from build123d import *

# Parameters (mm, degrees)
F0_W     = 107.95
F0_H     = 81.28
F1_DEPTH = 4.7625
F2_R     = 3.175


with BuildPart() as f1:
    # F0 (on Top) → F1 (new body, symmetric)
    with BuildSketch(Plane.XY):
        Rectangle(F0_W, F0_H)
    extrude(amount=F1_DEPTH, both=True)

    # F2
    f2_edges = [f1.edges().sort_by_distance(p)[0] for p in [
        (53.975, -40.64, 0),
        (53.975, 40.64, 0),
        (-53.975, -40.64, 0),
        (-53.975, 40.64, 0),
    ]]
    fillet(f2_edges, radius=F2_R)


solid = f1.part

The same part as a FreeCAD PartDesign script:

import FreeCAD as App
import Part
import Sketcher
from FreeCAD import Vector
Q = App.Units.Quantity


def edges_at(feature, points):
    """Names of the edges that pass closest to the given points."""
    edges = feature.Shape.Edges
    near = lambda p: min(range(len(edges)), key=lambda i: edges[i].distToShape(Part.Vertex(*p))[0])
    return sorted({f"Edge{near(p) + 1}" for p in points})

doc = App.newDocument("Part")
body = doc.addObject("PartDesign::Body", "Body")

sketch1 = body.newObject("Sketcher::SketchObject", "Sketch")
sketch1.AttachmentSupport = (doc.getObject("XY_Plane"), [""])
sketch1.MapMode = "FlatFace"
sketch1.addGeometry([
    Part.LineSegment(Vector(-54, 41, 0), Vector(-54, -41, 0)),
    Part.LineSegment(Vector(-54, -41, 0), Vector(54, -41, 0)),
    Part.LineSegment(Vector(54, -41, 0), Vector(54, 41, 0)),
    Part.LineSegment(Vector(54, 41, 0), Vector(-54, 41, 0)),
], False)
sketch1.addConstraint([
    Sketcher.Constraint("Coincident", 0, 2, 1, 1),
    Sketcher.Constraint("Coincident", 1, 2, 2, 1),
    Sketcher.Constraint("Coincident", 2, 2, 3, 1),
    Sketcher.Constraint("Coincident", 3, 2, 0, 1),
    Sketcher.Constraint("Vertical", 0),
    Sketcher.Constraint("Horizontal", 1),
    Sketcher.Constraint("Vertical", 2),
    Sketcher.Constraint("Horizontal", 3),
    Sketcher.Constraint("Symmetric", 0, 2, 2, 2, -1, 1),
    Sketcher.Constraint("DistanceY", 0, 2, 0, 1, Q("3.2 in")),
    Sketcher.Constraint("DistanceX", 1, 1, 1, 2, Q("4.25 in")),
])
pad1 = body.newObject("PartDesign::Pad", "Pad")
pad1.Profile = sketch1
pad1.Length = Q("0.375 in")
pad1.Midplane = True
doc.recompute()

fillet = body.newObject("PartDesign::Fillet", "Fillet")
fillet.Base = (pad1, edges_at(pad1, [
    (53.975, -40.64, 0),
    (53.975, 40.64, 0),
    (-53.975, -40.64, 0),
    (-53.975, 40.64, 0),
]))
fillet.Radius = Q("0.125 in")

doc.recompute()
